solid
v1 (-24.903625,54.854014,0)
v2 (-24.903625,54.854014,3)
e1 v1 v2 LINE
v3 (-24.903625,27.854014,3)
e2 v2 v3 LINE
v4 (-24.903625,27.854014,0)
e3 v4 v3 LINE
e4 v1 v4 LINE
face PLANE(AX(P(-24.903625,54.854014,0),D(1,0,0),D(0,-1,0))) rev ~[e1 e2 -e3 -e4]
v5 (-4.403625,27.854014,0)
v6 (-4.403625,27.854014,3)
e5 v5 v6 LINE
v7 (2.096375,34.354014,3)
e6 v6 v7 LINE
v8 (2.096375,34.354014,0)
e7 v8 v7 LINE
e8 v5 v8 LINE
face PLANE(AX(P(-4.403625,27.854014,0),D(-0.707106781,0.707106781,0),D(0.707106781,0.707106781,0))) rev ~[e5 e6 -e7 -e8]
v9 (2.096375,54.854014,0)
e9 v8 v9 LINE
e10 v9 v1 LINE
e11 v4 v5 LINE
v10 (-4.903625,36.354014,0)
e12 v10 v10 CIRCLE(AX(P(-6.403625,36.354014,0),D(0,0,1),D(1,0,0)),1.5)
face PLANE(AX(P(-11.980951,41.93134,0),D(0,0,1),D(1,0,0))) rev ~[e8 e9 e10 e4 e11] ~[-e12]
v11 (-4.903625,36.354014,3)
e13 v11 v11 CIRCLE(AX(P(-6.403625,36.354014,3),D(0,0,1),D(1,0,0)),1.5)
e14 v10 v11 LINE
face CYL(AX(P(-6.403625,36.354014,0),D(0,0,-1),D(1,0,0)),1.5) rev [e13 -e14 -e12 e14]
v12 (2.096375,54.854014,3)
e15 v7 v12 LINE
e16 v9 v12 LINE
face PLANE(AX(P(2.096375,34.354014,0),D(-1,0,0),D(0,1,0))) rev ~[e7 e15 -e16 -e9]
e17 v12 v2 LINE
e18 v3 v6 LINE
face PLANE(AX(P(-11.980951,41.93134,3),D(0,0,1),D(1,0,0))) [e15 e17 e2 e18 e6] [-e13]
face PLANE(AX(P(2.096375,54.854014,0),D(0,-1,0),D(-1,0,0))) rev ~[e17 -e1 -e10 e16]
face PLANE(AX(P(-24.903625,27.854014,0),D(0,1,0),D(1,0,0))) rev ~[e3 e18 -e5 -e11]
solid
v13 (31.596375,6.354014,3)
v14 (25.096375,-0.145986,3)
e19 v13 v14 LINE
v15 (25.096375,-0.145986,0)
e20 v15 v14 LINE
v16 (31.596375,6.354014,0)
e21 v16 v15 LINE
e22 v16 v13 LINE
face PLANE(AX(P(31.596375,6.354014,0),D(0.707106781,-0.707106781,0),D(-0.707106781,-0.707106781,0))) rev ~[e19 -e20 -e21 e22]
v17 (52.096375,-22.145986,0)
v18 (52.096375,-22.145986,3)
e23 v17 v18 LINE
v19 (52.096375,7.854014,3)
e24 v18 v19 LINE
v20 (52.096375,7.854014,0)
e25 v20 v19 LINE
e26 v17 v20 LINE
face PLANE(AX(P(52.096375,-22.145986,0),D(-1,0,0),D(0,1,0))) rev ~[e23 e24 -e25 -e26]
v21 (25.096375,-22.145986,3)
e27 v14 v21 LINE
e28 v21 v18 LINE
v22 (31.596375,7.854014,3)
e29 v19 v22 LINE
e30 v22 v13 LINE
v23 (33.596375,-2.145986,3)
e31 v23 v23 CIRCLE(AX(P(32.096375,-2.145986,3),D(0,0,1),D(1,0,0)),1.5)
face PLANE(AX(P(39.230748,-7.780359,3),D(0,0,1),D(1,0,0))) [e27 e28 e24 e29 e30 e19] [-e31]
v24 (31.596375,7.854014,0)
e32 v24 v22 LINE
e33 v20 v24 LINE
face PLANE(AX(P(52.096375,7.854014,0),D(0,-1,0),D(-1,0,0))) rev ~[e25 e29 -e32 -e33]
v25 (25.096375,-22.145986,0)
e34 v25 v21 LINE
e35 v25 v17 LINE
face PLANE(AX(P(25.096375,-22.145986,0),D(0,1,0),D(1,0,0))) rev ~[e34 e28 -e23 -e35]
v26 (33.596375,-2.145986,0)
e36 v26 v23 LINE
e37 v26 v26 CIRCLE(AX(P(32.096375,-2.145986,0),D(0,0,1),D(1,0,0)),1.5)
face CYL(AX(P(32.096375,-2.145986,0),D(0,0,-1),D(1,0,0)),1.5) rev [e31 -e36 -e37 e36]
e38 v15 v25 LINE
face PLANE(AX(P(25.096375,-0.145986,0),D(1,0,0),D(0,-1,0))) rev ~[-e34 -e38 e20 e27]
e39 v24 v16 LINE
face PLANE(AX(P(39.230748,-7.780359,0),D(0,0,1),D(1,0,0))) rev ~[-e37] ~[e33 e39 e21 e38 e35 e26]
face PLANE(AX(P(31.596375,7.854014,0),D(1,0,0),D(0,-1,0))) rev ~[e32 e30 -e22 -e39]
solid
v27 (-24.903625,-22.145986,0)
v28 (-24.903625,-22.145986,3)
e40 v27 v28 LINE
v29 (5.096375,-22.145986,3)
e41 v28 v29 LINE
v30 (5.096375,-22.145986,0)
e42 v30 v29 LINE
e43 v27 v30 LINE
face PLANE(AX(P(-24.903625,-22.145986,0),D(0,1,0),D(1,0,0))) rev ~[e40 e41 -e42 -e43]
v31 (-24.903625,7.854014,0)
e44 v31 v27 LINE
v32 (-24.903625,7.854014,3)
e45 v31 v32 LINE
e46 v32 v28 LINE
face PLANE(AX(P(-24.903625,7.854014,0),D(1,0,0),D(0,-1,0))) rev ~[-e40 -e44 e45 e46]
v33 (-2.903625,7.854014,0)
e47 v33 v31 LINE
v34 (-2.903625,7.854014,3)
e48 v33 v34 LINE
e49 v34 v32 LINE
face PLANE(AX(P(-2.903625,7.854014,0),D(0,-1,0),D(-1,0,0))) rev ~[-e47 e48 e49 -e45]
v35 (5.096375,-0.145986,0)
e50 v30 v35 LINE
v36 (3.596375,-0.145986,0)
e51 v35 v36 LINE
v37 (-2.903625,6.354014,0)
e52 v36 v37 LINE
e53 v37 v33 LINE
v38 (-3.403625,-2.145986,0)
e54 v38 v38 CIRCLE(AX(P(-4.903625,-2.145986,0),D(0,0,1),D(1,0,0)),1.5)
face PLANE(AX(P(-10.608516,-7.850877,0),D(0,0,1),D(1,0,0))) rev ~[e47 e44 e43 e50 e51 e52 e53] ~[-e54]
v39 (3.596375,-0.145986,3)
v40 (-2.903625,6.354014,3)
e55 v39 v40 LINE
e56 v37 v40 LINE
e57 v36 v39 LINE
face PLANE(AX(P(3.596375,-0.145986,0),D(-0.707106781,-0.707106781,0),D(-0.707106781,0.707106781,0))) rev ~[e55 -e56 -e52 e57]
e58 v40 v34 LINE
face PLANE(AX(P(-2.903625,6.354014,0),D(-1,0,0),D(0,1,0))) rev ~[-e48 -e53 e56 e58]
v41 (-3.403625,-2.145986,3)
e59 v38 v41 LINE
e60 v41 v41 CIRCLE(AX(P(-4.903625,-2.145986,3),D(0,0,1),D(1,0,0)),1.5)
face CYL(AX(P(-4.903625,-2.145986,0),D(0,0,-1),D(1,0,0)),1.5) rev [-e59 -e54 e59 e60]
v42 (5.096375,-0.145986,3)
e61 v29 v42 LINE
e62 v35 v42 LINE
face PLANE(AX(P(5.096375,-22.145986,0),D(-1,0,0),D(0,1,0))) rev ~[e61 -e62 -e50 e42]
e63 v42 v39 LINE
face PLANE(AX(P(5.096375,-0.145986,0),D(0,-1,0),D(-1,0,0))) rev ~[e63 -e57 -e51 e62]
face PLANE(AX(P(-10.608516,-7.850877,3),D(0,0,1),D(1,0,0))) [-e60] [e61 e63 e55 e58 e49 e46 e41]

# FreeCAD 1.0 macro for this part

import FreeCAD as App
import Part
import Sketcher
from FreeCAD import Vector
Q = App.Units.Quantity


def add_polygon(sketch, points):
    """Adds a closed chain of lines whose ends are joined by coincident constraints."""
    first, n = sketch.GeometryCount, len(points)
    for a, b in zip(points, points[1:] + points[:1]):
        sketch.addGeometry(Part.LineSegment(App.Vector(*a, 0), App.Vector(*b, 0)), False)
    for i in range(n):
        sketch.addConstraint(Sketcher.Constraint("Coincident", first + i, 2, first + (i + 1) % n, 1))

doc = App.newDocument("Part")
params = doc.addObject("Spreadsheet::Sheet", "Params")
for row, (alias, value) in enumerate([
    ("sketch1_diameter", "3 mm"),
    ("sketch1_width", "22 mm"),
    ("sketch1_width2", "30 mm"),
    ("sketch1_width3", "27 mm"),
    ("sketch1_width4", "1.5 mm"),
    ("pad1_length", "3 mm"),
], start=1):
    params.set(f"A{row}", alias)
    params.set(f"B{row}", "=" + value)
    params.setAlias(f"B{row}", alias)

body = doc.addObject("PartDesign::Body", "Body")
body.AllowCompound = True

# Sketch on XY plane
sketch1 = body.newObject("Sketcher::SketchObject", "Sketch")
sketch1.AttachmentSupport = (doc.getObject("XY_Plane"), [""])
sketch1.MapMode = "FlatFace"
add_polygon(sketch1, [(-2.9, 7.9), (-24.9, 7.9), (-24.9, -22.1), (5.1, -22.1), (5.1, -0.1), (3.6, -0.1), (-2.9, 6.4)])  # lines 0-6
sketch1.addGeometry(Part.Circle(Vector(-4.9, -2.1, 0), Vector(0, 0, 1), 1.5), False)  # 7
add_polygon(sketch1, [(52.1, 7.9), (31.6, 7.9), (31.6, 6.4), (25.1, -0.1), (25.1, -22.1), (52.1, -22.1)])  # lines 8-13
sketch1.addGeometry(Part.Circle(Vector(32.1, -2.1, 0), Vector(0, 0, 1), 1.5), False)  # 14
add_polygon(sketch1, [(2.1, 54.9), (-24.9, 54.9), (-24.9, 27.9), (-4.4, 27.9), (2.1, 34.4)])  # lines 15-19
sketch1.addGeometry(Part.Circle(Vector(-6.4, 36.4, 0), Vector(0, 0, 1), 1.5), False)  # 20
sketch1.addConstraint(Sketcher.Constraint("Horizontal", 0))
sketch1.addConstraint(Sketcher.Constraint("Vertical", 1))
sketch1.addConstraint(Sketcher.Constraint("Horizontal", 2))
sketch1.addConstraint(Sketcher.Constraint("Vertical", 3))
sketch1.addConstraint(Sketcher.Constraint("Horizontal", 4))
sketch1.addConstraint(Sketcher.Constraint("Vertical", 6))
sketch1.addConstraint(Sketcher.Constraint("Horizontal", 8))
sketch1.addConstraint(Sketcher.Constraint("Vertical", 9))
sketch1.addConstraint(Sketcher.Constraint("Vertical", 11))
sketch1.addConstraint(Sketcher.Constraint("Horizontal", 12))
sketch1.addConstraint(Sketcher.Constraint("Vertical", 13))
sketch1.addConstraint(Sketcher.Constraint("Horizontal", 15))
sketch1.addConstraint(Sketcher.Constraint("Vertical", 16))
sketch1.addConstraint(Sketcher.Constraint("Horizontal", 17))
sketch1.addConstraint(Sketcher.Constraint("Vertical", 19))
sketch1.addConstraint(Sketcher.Constraint("Equal", 7, 14))
sketch1.addConstraint(Sketcher.Constraint("Equal", 14, 20))
sketch1.addConstraint(Sketcher.Constraint("Perpendicular", 5, 10))
sketch1.addConstraint(Sketcher.Constraint("Parallel", 10, 18))
sketch1.addConstraint(Sketcher.Constraint("Horizontal", 7, 3, 14, 3))
sketch1.addConstraint(Sketcher.Constraint("Horizontal", 6, 2, 8, 2))
sketch1.addConstraint(Sketcher.Constraint("Horizontal", 5, 2, 9, 2))
sketch1.addConstraint(Sketcher.Constraint("Horizontal", 4, 2, 10, 2))
sketch1.addConstraint(Sketcher.Constraint("Horizontal", 2, 2, 11, 2))
sketch1.addConstraint(Sketcher.Constraint("Vertical", 1, 2, 15, 2))
sketch1.addConstraint(Sketcher.Constraint("Equal", 12, 15))
sketch1.addConstraint(Sketcher.Constraint("Equal", 8, 17))
sketch1.addConstraint(Sketcher.Constraint("Equal", 2, 1))
sketch1.addConstraint(Sketcher.Constraint("Equal", 0, 3))
sketch1.addConstraint(Sketcher.Constraint("Equal", 4, 6))
sketch1.addConstraint(Sketcher.Constraint("Equal", 15, 16))
sketch1.addConstraint(Sketcher.Constraint("Diameter", 7, Q("3 mm")))
sketch1.addConstraint(Sketcher.Constraint("DistanceX", 0, 2, 0, 1, Q("22 mm")))
sketch1.addConstraint(Sketcher.Constraint("DistanceX", 2, 1, 2, 2, Q("30 mm")))
sketch1.addConstraint(Sketcher.Constraint("DistanceX", 12, 1, 12, 2, Q("27 mm")))
sketch1.addConstraint(Sketcher.Constraint("DistanceX", 4, 2, 4, 1, Q("1.5 mm")))
sketch1.addConstraint(Sketcher.Constraint("DistanceX", 7, 3, 14, 3, Q("37 mm")))
sketch1.addConstraint(Sketcher.Constraint("DistanceX", 0, 2, 7, 3, Q("20 mm")))
sketch1.addConstraint(Sketcher.Constraint("DistanceY", 7, 3, 0, 2, Q("10 mm")))
sketch1.addConstraint(Sketcher.Constraint("DistanceX", 4, 2, 8, 2, Q("28 mm")))
sketch1.addConstraint(Sketcher.Constraint("DistanceY", 0, 2, 15, 2, Q("47 mm")))
sketch1.addConstraint(Sketcher.Constraint("DistanceX", 20, 3, 17, 2, Q("2 mm")))
sketch1.addConstraint(Sketcher.Constraint("DistanceY", 18, 2, 20, 3, Q("2 mm")))
sketch1.addConstraint(Sketcher.Constraint("DistanceX", 7, 3, -1, 1, Q("4.903625 mm")))
sketch1.addConstraint(Sketcher.Constraint("DistanceY", 7, 3, -1, 1, Q("2.145986 mm")))
sketch1.setExpression("Constraints[49]", "Params.sketch1_diameter")
sketch1.setExpression("Constraints[50]", "Params.sketch1_width")
sketch1.setExpression("Constraints[51]", "Params.sketch1_width2")
sketch1.setExpression("Constraints[52]", "Params.sketch1_width3")
sketch1.setExpression("Constraints[53]", "Params.sketch1_width4")
pad1 = body.newObject("PartDesign::Pad", "Pad")
pad1.Profile = sketch1
pad1.setExpression("Length", "Params.pad1_length")

doc.recompute()
